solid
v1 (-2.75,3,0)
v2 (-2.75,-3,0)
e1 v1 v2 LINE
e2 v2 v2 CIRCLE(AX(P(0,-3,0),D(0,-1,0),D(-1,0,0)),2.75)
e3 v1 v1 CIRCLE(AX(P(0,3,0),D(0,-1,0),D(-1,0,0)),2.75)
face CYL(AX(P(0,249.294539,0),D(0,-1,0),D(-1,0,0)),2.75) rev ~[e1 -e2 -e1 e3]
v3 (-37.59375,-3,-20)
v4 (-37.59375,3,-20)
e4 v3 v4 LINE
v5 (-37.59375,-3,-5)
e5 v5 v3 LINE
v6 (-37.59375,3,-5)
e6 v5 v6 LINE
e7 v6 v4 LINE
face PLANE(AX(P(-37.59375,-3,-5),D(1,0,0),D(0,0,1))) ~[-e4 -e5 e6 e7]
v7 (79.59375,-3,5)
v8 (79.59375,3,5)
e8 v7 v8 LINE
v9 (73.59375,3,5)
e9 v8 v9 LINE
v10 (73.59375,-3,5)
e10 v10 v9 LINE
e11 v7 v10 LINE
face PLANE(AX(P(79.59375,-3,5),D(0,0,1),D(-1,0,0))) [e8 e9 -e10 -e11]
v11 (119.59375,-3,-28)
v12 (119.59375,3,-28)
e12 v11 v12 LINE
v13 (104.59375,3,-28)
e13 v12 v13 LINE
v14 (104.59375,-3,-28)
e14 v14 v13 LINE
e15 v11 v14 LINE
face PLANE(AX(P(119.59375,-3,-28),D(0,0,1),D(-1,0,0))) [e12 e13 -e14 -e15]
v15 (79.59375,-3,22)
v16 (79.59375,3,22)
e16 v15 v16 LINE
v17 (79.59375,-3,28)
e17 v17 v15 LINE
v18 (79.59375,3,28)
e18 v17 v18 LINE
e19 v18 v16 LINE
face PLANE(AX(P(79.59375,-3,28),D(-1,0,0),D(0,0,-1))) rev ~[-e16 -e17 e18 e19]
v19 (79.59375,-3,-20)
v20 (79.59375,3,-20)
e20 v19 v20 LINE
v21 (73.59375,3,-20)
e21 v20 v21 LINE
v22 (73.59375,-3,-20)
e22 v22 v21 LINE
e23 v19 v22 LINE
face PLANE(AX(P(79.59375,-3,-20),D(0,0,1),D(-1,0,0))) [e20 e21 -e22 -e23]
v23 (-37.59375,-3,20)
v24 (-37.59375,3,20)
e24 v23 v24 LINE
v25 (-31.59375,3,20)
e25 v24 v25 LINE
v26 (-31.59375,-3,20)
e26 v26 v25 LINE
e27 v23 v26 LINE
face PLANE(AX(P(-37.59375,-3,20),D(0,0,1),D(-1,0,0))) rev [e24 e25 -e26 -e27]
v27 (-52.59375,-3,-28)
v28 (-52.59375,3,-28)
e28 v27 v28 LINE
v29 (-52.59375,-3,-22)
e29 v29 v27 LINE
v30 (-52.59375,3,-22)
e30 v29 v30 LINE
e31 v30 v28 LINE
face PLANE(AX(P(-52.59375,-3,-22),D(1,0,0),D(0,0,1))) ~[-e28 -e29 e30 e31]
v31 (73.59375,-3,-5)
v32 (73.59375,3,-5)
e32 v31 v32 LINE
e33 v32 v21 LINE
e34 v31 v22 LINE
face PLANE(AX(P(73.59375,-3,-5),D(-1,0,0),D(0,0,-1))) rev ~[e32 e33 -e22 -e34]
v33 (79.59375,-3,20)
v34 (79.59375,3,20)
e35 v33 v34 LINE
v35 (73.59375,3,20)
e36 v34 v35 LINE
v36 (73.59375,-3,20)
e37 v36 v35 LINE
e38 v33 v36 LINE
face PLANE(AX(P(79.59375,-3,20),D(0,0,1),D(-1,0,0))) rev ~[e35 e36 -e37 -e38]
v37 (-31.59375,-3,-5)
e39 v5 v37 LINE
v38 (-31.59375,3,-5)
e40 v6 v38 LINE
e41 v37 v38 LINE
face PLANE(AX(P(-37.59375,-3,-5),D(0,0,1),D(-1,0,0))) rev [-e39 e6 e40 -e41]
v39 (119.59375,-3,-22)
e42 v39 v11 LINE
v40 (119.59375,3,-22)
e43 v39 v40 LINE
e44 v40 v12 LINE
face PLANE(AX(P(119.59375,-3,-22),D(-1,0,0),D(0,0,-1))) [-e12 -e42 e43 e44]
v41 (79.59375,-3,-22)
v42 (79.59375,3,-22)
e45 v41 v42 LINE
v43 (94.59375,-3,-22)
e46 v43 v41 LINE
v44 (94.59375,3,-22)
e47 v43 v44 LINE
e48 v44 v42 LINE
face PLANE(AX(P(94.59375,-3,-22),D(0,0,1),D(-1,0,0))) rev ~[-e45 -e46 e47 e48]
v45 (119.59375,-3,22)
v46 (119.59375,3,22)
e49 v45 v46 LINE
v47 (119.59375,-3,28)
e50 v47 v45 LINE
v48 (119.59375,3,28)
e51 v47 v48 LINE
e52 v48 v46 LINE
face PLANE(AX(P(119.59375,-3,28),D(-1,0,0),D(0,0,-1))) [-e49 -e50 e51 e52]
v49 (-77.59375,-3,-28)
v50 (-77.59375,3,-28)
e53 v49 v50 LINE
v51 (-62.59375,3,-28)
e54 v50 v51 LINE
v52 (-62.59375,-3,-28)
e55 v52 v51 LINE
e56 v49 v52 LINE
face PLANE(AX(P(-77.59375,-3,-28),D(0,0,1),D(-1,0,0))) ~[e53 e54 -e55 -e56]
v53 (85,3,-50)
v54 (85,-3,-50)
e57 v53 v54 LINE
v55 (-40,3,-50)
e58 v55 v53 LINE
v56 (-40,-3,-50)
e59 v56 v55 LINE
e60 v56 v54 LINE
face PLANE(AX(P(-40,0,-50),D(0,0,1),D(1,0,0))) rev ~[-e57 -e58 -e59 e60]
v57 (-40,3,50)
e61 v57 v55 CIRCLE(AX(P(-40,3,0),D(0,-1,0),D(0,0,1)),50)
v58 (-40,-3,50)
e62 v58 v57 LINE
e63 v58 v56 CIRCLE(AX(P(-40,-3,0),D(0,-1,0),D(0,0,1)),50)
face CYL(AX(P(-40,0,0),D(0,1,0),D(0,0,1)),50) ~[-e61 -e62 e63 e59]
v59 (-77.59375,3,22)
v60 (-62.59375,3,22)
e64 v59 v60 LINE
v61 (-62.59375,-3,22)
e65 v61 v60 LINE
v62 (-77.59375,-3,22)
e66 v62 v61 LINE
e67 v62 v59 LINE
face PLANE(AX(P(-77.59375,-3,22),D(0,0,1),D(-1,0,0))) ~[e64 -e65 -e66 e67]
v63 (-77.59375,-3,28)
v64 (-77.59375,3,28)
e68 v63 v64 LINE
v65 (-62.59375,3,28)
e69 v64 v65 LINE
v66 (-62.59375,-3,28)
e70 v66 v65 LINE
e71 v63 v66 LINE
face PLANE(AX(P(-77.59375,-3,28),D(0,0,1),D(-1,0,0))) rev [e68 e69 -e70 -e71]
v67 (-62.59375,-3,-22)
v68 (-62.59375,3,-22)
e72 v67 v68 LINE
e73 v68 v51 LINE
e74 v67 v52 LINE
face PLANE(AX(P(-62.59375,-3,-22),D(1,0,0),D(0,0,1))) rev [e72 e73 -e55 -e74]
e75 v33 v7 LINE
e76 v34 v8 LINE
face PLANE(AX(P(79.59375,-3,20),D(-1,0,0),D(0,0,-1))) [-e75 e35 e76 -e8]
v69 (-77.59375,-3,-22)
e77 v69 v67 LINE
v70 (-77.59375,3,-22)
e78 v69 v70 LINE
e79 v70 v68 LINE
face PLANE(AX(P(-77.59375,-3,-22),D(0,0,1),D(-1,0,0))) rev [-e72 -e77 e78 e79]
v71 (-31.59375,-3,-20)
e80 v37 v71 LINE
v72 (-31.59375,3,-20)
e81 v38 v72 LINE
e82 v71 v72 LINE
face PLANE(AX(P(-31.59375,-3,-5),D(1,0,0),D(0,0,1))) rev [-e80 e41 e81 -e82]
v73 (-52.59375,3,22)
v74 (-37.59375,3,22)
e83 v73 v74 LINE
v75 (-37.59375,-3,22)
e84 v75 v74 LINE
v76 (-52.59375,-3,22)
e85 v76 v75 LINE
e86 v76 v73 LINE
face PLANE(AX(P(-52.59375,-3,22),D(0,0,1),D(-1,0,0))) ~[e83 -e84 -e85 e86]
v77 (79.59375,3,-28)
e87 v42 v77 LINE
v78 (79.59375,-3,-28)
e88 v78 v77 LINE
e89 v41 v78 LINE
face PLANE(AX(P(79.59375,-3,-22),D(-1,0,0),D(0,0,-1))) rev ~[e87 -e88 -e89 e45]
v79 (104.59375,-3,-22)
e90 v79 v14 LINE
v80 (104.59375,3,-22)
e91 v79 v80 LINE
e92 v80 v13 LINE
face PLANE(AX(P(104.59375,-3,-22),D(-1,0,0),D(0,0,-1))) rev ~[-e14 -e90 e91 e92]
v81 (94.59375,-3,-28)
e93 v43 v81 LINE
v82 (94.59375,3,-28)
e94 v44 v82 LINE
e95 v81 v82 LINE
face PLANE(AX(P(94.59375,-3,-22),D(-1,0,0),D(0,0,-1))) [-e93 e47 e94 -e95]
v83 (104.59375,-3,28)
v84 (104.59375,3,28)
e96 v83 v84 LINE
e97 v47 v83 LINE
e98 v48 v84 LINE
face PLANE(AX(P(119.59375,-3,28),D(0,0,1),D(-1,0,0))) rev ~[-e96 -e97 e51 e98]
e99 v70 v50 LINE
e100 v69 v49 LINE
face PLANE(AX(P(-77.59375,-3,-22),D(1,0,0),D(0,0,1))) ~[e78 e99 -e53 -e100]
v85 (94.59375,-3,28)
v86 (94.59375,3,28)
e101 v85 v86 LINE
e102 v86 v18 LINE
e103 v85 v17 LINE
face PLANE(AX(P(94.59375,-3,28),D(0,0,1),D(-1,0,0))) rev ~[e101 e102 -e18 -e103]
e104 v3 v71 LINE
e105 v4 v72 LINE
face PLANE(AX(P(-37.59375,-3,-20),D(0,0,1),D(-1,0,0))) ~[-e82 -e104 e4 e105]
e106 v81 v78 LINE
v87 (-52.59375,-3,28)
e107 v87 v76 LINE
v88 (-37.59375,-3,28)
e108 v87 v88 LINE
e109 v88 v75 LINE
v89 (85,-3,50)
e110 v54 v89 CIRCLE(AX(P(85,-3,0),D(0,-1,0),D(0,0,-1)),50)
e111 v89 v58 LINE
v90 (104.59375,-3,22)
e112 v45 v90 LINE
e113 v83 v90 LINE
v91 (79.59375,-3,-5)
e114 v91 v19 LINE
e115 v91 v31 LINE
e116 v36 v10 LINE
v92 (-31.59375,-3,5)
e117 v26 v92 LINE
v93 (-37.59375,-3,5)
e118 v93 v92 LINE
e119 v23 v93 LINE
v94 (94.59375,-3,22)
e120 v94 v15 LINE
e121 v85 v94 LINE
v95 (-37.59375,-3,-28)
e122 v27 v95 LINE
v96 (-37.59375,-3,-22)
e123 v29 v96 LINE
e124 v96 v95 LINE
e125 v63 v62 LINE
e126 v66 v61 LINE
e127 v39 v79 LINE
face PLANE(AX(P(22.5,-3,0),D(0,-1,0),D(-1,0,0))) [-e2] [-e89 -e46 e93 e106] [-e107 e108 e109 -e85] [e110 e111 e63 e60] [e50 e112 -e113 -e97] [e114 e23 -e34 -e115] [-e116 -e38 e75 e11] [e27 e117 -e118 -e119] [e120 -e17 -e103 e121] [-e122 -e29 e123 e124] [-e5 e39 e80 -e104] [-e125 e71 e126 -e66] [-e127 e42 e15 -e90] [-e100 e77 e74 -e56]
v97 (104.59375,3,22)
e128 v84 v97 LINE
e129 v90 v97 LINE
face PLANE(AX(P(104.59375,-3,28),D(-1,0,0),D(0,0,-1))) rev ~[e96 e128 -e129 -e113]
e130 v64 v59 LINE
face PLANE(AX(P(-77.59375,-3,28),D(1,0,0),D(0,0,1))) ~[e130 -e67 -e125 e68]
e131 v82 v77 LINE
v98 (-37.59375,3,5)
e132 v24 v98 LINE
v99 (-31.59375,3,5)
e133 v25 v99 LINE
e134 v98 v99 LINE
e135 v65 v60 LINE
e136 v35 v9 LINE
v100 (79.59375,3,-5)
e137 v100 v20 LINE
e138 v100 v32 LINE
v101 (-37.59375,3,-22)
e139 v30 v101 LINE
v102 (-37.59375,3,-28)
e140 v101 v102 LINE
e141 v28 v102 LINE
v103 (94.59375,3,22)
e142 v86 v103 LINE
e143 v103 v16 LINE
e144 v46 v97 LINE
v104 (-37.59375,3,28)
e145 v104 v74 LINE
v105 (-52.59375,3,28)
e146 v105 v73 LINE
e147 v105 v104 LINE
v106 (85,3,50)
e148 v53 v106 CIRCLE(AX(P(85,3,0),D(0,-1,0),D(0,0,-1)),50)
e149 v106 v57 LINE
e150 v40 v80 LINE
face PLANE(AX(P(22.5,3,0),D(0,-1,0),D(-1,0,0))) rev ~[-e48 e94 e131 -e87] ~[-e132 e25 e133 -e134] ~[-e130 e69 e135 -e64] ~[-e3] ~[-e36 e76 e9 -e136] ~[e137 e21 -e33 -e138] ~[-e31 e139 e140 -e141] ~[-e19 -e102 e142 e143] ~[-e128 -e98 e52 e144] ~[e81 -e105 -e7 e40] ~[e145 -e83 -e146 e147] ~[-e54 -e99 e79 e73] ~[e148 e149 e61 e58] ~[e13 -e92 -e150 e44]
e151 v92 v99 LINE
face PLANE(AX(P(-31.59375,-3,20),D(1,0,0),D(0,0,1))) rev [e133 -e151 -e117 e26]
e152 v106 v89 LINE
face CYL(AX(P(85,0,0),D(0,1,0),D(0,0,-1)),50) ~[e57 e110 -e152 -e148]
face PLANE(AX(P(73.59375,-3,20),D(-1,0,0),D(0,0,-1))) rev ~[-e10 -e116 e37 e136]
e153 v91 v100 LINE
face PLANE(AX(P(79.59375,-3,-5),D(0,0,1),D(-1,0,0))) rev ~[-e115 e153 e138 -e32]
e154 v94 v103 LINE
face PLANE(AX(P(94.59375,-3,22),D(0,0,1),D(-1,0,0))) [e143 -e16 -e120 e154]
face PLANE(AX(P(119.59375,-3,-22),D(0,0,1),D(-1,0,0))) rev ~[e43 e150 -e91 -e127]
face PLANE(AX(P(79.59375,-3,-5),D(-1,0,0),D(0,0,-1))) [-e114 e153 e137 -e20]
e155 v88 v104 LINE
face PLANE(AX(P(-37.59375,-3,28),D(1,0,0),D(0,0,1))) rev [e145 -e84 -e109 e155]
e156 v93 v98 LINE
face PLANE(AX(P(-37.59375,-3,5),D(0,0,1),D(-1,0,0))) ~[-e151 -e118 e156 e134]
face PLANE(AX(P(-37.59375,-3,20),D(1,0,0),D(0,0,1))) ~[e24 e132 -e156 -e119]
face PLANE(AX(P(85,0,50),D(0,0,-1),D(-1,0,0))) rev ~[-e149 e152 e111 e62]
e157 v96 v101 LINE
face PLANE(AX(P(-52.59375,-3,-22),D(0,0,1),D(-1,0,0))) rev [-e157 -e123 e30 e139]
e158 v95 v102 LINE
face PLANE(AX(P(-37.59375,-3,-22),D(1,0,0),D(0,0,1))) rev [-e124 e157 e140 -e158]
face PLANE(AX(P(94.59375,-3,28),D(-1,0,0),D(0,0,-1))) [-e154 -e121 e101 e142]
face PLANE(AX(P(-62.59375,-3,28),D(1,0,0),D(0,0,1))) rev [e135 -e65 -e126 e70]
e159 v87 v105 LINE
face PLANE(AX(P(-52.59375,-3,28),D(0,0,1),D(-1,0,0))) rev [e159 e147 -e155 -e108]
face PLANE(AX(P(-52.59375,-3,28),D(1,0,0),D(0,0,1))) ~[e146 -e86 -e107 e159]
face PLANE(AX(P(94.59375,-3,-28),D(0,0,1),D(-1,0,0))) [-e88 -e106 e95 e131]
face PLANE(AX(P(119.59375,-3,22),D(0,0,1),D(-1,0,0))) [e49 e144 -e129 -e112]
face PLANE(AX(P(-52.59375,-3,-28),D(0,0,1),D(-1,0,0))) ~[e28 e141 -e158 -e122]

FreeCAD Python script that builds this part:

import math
import FreeCAD as App
import Part
import Sketcher

V = App.Vector
Q = App.Units.Quantity

doc = App.newDocument("Part")
body = doc.addObject("PartDesign::Body", "Body")

# Sketch on XZ plane
sketch1 = body.newObject("Sketcher::SketchObject", "Sketch")
sketch1.AttachmentSupport = (doc.getObject("XZ_Plane"), [""])
sketch1.MapMode = "FlatFace"
sketch1.addGeometry([
    Part.LineSegment(V(85, -50, 0), V(-40, -50, 0)),
    Part.ArcOfCircle(Part.Circle(V(-40, 0, 0), V(0, 0, 1), 50), math.radians(90), math.radians(270)),
    Part.LineSegment(V(-40, 50, 0), V(85, 50, 0)),
    Part.ArcOfCircle(Part.Circle(V(85, 0, 0), V(0, 0, 1), 50), math.radians(-90), math.radians(90)),
], False)
sketch1.addConstraint([
    Sketcher.Constraint("Tangent", 0, 2, 1, 2),
    Sketcher.Constraint("Tangent", 1, 1, 2, 1),
    Sketcher.Constraint("Tangent", 2, 2, 3, 2),
    Sketcher.Constraint("Tangent", 3, 1, 0, 1),
    Sketcher.Constraint("Horizontal", 0),
    Sketcher.Constraint("Horizontal", 2),
    Sketcher.Constraint("PointOnObject", 1, 3, -1),
    Sketcher.Constraint("Radius", 1, Q("50 mm")),
    Sketcher.Constraint("DistanceX", 0, 2, 0, 1, Q("125 mm")),
    Sketcher.Constraint("DistanceX", 1, 3, -1, 1, Q("40 mm")),
])
pad1 = body.newObject("PartDesign::Pad", "Pad")
pad1.Profile = sketch1
pad1.Length = 6
pad1.Midplane = True

# Sketch on XZ plane
sketch2 = body.newObject("Sketcher::SketchObject", "Sketch001")
sketch2.AttachmentSupport = (doc.getObject("XZ_Plane"), [""])
sketch2.MapMode = "FlatFace"
sketch2.AttachmentOffset = App.Placement(V(0, 0, -3), App.Rotation())
sketch2.addGeometry(Part.Circle(V(0, 0, 0), V(0, 0, 1), 2.75), False)
sketch2.addConstraint([
    Sketcher.Constraint("Coincident", 0, 3, -1, 1),
    Sketcher.Constraint("Diameter", 0, Q("5.5 mm")),
])
doc.recompute()
hole = body.newObject("PartDesign::Hole", "Hole")
hole.Profile = sketch2
hole.ThreadType = "None"
hole.Diameter = 5.5
hole.DepthType = "ThroughAll"
hole.Reversed = True

# Sketch on XZ plane
sketch3 = body.newObject("Sketcher::SketchObject", "Sketch002")
sketch3.AttachmentSupport = (doc.getObject("XZ_Plane"), [""])
sketch3.MapMode = "FlatFace"
sketch3.AttachmentOffset = App.Placement(V(0, 0, 3), App.Rotation())
sketch3.addGeometry([
    Part.LineSegment(V(94.59375, 22, 0), V(94.59375, 28, 0)),  # 0
    Part.LineSegment(V(94.59375, 28, 0), V(79.59375, 28, 0)),  # 1
    Part.LineSegment(V(79.59375, 28, 0), V(79.59375, 22, 0)),  # 2
    Part.LineSegment(V(79.59375, 22, 0), V(94.59375, 22, 0)),  # 3
    Part.LineSegment(V(119.59375, 22, 0), V(119.59375, 28, 0)),  # 4
    Part.LineSegment(V(119.59375, 28, 0), V(104.59375, 28, 0)),  # 5
    Part.LineSegment(V(104.59375, 28, 0), V(104.59375, 22, 0)),  # 6
    Part.LineSegment(V(104.59375, 22, 0), V(119.59375, 22, 0)),  # 7
    Part.LineSegment(V(119.59375, -28, 0), V(119.59375, -22, 0)),  # 8
    Part.LineSegment(V(119.59375, -22, 0), V(104.59375, -22, 0)),  # 9
    Part.LineSegment(V(104.59375, -22, 0), V(104.59375, -28, 0)),  # 10
    Part.LineSegment(V(104.59375, -28, 0), V(119.59375, -28, 0)),  # 11
    Part.LineSegment(V(94.59375, -28, 0), V(94.59375, -22, 0)),  # 12
    Part.LineSegment(V(94.59375, -22, 0), V(79.59375, -22, 0)),  # 13
    Part.LineSegment(V(79.59375, -22, 0), V(79.59375, -28, 0)),  # 14
    Part.LineSegment(V(79.59375, -28, 0), V(94.59375, -28, 0)),  # 15
    Part.LineSegment(V(79.59375, 5, 0), V(79.59375, 20, 0)),  # 16
    Part.LineSegment(V(79.59375, 20, 0), V(73.59375, 20, 0)),  # 17
    Part.LineSegment(V(73.59375, 20, 0), V(73.59375, 5, 0)),  # 18
    Part.LineSegment(V(73.59375, 5, 0), V(79.59375, 5, 0)),  # 19
    Part.LineSegment(V(79.59375, -20, 0), V(79.59375, -5, 0)),  # 20
    Part.LineSegment(V(79.59375, -5, 0), V(73.59375, -5, 0)),  # 21
    Part.LineSegment(V(73.59375, -5, 0), V(73.59375, -20, 0)),  # 22
    Part.LineSegment(V(73.59375, -20, 0), V(79.59375, -20, 0)),  # 23
], False)
sketch3.addConstraint([
    Sketcher.Constraint("Coincident", 0, 2, 1, 1),
    Sketcher.Constraint("Coincident", 1, 2, 2, 1),
    Sketcher.Constraint("Coincident", 2, 2, 3, 1),
    Sketcher.Constraint("Coincident", 3, 2, 0, 1),
    Sketcher.Constraint("Coincident", 4, 2, 5, 1),
    Sketcher.Constraint("Coincident", 5, 2, 6, 1),
    Sketcher.Constraint("Coincident", 6, 2, 7, 1),
    Sketcher.Constraint("Coincident", 7, 2, 4, 1),
    Sketcher.Constraint("Coincident", 8, 2, 9, 1),
    Sketcher.Constraint("Coincident", 9, 2, 10, 1),
    Sketcher.Constraint("Coincident", 10, 2, 11, 1),
    Sketcher.Constraint("Coincident", 11, 2, 8, 1),
    Sketcher.Constraint("Coincident", 12, 2, 13, 1),
    Sketcher.Constraint("Coincident", 13, 2, 14, 1),
    Sketcher.Constraint("Coincident", 14, 2, 15, 1),
    Sketcher.Constraint("Coincident", 15, 2, 12, 1),
    Sketcher.Constraint("Coincident", 16, 2, 17, 1),
    Sketcher.Constraint("Coincident", 17, 2, 18, 1),
    Sketcher.Constraint("Coincident", 18, 2, 19, 1),
    Sketcher.Constraint("Coincident", 19, 2, 16, 1),
    Sketcher.Constraint("Coincident", 20, 2, 21, 1),
    Sketcher.Constraint("Coincident", 21, 2, 22, 1),
    Sketcher.Constraint("Coincident", 22, 2, 23, 1),
    Sketcher.Constraint("Coincident", 23, 2, 20, 1),
    Sketcher.Constraint("Vertical", 0),
    Sketcher.Constraint("Horizontal", 1),
    Sketcher.Constraint("Vertical", 2),
    Sketcher.Constraint("Horizontal", 3),
    Sketcher.Constraint("Vertical", 4),
    Sketcher.Constraint("Horizontal", 5),
    Sketcher.Constraint("Vertical", 6),
    Sketcher.Constraint("Horizontal", 7),
    Sketcher.Constraint("Vertical", 8),
    Sketcher.Constraint("Horizontal", 9),
    Sketcher.Constraint("Vertical", 10),
    Sketcher.Constraint("Horizontal", 11),
    Sketcher.Constraint("Vertical", 12),
    Sketcher.Constraint("Horizontal", 13),
    Sketcher.Constraint("Vertical", 14),
    Sketcher.Constraint("Horizontal", 15),
    Sketcher.Constraint("Vertical", 16),
    Sketcher.Constraint("Horizontal", 17),
    Sketcher.Constraint("Vertical", 18),
    Sketcher.Constraint("Horizontal", 19),
    Sketcher.Constraint("Vertical", 20),
    Sketcher.Constraint("Horizontal", 21),
    Sketcher.Constraint("Vertical", 22),
    Sketcher.Constraint("Horizontal", 23),
    Sketcher.Constraint("Symmetric", 7, 2, 8, 2, -1),
    Sketcher.Constraint("Symmetric", 5, 2, 10, 2, -1),
    Sketcher.Constraint("Symmetric", 3, 2, 12, 2, -1),
    Sketcher.Constraint("Symmetric", 1, 2, 14, 2, -1),
    Sketcher.Constraint("Symmetric", 19, 2, 20, 2, -1),
    Sketcher.Constraint("Symmetric", 17, 2, 22, 2, -1),
    Sketcher.Constraint("Horizontal", 1, 2, 4, 2),
    Sketcher.Constraint("Horizontal", 3, 2, 6, 2),
    Sketcher.Constraint("Vertical", 14, 2, 16, 2),
    Sketcher.Constraint("Equal", 3, 5),
    Sketcher.Constraint("Equal", 23, 0),
    Sketcher.Constraint("Equal", 15, 16),
    Sketcher.Constraint("DistanceX", 1, 2, 1, 1, Q("15 mm")),
    Sketcher.Constraint("DistanceX", 17, 2, 17, 1, Q("6 mm")),
    Sketcher.Constraint("DistanceY", -1, 1, 0, 2, Q("28 mm")),
    Sketcher.Constraint("DistanceY", -1, 1, 16, 2, Q("20 mm")),
    Sketcher.Constraint("DistanceX", 0, 2, 4, 2, Q("25 mm")),
    Sketcher.Constraint("DistanceX", -1, 1, 0, 2, Q("94.59375 mm")),
])
pocket1 = body.newObject("PartDesign::Pocket", "Pocket")
pocket1.Profile = sketch3
pocket1.Type = "ThroughAll"
doc.recompute()

datumplane = body.newObject("PartDesign::Plane", "DatumPlane")
datumplane.AttachmentSupport = (doc.getObject("YZ_Plane"), [""])
datumplane.MapMode = "FlatFace"
datumplane.AttachmentOffset = App.Placement(V(0, 0, 21), App.Rotation())
mirrored = body.newObject("PartDesign::Mirrored", "Mirrored")
mirrored.Originals = [pocket1]
mirrored.MirrorPlane = (datumplane, [""])
body.Tip = mirrored

doc.recompute()
